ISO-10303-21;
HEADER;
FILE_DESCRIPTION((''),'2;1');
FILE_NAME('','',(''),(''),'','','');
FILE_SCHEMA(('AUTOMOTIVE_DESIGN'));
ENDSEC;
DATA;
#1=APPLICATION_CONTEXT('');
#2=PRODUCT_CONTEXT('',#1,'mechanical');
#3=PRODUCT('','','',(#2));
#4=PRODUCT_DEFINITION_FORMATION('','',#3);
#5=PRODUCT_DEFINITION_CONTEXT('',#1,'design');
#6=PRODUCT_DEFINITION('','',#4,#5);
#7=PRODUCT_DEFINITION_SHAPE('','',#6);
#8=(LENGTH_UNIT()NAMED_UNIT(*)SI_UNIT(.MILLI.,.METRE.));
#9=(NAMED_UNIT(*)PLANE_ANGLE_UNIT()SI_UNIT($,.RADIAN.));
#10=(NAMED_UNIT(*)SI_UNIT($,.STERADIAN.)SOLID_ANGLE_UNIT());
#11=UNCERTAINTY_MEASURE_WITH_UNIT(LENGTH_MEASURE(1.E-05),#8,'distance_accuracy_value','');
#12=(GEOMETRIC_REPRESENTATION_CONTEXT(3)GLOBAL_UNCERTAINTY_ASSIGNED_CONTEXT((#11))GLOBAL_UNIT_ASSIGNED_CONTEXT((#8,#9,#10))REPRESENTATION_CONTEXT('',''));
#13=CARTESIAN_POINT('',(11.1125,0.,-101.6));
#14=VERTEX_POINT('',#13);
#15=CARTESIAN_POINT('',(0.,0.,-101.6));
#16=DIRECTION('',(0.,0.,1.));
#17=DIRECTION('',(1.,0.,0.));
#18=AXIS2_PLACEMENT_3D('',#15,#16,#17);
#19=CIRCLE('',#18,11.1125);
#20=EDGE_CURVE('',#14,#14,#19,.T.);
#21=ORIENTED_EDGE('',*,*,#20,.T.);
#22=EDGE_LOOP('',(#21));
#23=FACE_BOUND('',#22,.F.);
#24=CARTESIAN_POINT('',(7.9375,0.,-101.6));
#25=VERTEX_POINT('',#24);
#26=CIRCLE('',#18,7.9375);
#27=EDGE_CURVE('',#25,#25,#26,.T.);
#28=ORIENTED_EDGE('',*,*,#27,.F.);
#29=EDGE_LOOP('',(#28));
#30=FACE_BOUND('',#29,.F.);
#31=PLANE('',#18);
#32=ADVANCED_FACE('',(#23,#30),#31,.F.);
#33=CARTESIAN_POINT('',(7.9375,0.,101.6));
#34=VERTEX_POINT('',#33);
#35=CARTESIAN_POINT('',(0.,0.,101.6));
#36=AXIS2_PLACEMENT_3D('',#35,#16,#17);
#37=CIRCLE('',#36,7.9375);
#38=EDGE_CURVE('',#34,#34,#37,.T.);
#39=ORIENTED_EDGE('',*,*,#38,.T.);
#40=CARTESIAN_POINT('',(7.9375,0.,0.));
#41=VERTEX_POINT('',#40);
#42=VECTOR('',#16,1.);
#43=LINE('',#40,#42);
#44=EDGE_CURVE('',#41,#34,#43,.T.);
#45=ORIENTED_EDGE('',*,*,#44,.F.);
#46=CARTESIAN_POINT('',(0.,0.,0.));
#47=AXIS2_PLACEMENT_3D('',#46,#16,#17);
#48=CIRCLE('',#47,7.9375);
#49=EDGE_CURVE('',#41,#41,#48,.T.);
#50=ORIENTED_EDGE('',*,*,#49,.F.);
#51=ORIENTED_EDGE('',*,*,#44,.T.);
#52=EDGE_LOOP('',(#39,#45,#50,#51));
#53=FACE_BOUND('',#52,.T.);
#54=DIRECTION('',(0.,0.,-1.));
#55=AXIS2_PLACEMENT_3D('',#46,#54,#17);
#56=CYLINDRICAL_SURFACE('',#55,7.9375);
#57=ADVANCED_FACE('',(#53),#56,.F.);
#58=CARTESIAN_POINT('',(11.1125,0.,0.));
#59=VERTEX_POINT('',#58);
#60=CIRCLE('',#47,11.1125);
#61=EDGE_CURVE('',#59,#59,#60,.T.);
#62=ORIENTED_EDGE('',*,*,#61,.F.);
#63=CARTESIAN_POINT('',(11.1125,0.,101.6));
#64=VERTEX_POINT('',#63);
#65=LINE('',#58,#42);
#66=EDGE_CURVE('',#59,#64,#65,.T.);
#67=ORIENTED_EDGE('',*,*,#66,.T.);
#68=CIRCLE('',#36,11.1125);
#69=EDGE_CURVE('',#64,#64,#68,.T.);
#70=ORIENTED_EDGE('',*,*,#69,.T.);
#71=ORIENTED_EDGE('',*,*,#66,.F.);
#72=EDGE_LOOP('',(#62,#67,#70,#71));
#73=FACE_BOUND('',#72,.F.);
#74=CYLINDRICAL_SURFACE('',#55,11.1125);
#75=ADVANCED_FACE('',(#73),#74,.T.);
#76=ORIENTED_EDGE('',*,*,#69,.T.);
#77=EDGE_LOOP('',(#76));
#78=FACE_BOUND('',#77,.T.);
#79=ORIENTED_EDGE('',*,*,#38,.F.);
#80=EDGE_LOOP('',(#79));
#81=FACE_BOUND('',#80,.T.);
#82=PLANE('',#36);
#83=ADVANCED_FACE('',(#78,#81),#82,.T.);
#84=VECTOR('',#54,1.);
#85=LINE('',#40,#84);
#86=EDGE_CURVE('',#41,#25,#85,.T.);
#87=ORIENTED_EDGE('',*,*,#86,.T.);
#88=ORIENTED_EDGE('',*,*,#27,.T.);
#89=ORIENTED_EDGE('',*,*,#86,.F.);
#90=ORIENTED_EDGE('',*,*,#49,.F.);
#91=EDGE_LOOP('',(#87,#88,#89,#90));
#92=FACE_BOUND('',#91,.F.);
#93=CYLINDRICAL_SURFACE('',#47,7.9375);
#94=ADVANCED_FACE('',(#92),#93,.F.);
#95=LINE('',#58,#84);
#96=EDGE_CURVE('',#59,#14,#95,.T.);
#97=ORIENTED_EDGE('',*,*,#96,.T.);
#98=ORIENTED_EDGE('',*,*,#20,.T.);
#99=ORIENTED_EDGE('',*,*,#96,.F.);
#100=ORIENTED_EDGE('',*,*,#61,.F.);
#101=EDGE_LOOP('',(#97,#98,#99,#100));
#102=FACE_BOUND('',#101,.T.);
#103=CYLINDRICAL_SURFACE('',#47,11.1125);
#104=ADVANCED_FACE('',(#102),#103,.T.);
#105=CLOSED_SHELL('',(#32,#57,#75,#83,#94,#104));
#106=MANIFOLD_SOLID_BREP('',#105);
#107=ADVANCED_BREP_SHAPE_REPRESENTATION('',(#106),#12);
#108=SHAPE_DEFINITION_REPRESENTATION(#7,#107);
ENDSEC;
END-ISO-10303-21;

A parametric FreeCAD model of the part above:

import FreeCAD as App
import Part
import Sketcher
from FreeCAD import Vector
Q = App.Units.Quantity

doc = App.newDocument("Part")
body = doc.addObject("PartDesign::Body", "Body")

# Sketch on XY plane
sketch1 = body.newObject("Sketcher::SketchObject", "Sketch")
sketch1.AttachmentSupport = (doc.getObject("XY_Plane"), [""])
sketch1.MapMode = "FlatFace"
sketch1.addGeometry([
    Part.Circle(Vector(0, 0, 0), Vector(0, 0, 1), 11),
    Part.Circle(Vector(0, 0, 0), Vector(0, 0, 1), 8),
], False)
sketch1.addConstraint([
    Sketcher.Constraint("Coincident", 0, 3, -1, 1),
    Sketcher.Constraint("Coincident", 1, 3, -1, 1),
    Sketcher.Constraint("Diameter", 0, Q("0.875 in")),
    Sketcher.Constraint("Diameter", 1, Q("0.625 in")),
])
pad1 = body.newObject("PartDesign::Pad", "Pad")
pad1.Profile = sketch1
pad1.Length = Q("8 in")
pad1.Midplane = True

doc.recompute()
